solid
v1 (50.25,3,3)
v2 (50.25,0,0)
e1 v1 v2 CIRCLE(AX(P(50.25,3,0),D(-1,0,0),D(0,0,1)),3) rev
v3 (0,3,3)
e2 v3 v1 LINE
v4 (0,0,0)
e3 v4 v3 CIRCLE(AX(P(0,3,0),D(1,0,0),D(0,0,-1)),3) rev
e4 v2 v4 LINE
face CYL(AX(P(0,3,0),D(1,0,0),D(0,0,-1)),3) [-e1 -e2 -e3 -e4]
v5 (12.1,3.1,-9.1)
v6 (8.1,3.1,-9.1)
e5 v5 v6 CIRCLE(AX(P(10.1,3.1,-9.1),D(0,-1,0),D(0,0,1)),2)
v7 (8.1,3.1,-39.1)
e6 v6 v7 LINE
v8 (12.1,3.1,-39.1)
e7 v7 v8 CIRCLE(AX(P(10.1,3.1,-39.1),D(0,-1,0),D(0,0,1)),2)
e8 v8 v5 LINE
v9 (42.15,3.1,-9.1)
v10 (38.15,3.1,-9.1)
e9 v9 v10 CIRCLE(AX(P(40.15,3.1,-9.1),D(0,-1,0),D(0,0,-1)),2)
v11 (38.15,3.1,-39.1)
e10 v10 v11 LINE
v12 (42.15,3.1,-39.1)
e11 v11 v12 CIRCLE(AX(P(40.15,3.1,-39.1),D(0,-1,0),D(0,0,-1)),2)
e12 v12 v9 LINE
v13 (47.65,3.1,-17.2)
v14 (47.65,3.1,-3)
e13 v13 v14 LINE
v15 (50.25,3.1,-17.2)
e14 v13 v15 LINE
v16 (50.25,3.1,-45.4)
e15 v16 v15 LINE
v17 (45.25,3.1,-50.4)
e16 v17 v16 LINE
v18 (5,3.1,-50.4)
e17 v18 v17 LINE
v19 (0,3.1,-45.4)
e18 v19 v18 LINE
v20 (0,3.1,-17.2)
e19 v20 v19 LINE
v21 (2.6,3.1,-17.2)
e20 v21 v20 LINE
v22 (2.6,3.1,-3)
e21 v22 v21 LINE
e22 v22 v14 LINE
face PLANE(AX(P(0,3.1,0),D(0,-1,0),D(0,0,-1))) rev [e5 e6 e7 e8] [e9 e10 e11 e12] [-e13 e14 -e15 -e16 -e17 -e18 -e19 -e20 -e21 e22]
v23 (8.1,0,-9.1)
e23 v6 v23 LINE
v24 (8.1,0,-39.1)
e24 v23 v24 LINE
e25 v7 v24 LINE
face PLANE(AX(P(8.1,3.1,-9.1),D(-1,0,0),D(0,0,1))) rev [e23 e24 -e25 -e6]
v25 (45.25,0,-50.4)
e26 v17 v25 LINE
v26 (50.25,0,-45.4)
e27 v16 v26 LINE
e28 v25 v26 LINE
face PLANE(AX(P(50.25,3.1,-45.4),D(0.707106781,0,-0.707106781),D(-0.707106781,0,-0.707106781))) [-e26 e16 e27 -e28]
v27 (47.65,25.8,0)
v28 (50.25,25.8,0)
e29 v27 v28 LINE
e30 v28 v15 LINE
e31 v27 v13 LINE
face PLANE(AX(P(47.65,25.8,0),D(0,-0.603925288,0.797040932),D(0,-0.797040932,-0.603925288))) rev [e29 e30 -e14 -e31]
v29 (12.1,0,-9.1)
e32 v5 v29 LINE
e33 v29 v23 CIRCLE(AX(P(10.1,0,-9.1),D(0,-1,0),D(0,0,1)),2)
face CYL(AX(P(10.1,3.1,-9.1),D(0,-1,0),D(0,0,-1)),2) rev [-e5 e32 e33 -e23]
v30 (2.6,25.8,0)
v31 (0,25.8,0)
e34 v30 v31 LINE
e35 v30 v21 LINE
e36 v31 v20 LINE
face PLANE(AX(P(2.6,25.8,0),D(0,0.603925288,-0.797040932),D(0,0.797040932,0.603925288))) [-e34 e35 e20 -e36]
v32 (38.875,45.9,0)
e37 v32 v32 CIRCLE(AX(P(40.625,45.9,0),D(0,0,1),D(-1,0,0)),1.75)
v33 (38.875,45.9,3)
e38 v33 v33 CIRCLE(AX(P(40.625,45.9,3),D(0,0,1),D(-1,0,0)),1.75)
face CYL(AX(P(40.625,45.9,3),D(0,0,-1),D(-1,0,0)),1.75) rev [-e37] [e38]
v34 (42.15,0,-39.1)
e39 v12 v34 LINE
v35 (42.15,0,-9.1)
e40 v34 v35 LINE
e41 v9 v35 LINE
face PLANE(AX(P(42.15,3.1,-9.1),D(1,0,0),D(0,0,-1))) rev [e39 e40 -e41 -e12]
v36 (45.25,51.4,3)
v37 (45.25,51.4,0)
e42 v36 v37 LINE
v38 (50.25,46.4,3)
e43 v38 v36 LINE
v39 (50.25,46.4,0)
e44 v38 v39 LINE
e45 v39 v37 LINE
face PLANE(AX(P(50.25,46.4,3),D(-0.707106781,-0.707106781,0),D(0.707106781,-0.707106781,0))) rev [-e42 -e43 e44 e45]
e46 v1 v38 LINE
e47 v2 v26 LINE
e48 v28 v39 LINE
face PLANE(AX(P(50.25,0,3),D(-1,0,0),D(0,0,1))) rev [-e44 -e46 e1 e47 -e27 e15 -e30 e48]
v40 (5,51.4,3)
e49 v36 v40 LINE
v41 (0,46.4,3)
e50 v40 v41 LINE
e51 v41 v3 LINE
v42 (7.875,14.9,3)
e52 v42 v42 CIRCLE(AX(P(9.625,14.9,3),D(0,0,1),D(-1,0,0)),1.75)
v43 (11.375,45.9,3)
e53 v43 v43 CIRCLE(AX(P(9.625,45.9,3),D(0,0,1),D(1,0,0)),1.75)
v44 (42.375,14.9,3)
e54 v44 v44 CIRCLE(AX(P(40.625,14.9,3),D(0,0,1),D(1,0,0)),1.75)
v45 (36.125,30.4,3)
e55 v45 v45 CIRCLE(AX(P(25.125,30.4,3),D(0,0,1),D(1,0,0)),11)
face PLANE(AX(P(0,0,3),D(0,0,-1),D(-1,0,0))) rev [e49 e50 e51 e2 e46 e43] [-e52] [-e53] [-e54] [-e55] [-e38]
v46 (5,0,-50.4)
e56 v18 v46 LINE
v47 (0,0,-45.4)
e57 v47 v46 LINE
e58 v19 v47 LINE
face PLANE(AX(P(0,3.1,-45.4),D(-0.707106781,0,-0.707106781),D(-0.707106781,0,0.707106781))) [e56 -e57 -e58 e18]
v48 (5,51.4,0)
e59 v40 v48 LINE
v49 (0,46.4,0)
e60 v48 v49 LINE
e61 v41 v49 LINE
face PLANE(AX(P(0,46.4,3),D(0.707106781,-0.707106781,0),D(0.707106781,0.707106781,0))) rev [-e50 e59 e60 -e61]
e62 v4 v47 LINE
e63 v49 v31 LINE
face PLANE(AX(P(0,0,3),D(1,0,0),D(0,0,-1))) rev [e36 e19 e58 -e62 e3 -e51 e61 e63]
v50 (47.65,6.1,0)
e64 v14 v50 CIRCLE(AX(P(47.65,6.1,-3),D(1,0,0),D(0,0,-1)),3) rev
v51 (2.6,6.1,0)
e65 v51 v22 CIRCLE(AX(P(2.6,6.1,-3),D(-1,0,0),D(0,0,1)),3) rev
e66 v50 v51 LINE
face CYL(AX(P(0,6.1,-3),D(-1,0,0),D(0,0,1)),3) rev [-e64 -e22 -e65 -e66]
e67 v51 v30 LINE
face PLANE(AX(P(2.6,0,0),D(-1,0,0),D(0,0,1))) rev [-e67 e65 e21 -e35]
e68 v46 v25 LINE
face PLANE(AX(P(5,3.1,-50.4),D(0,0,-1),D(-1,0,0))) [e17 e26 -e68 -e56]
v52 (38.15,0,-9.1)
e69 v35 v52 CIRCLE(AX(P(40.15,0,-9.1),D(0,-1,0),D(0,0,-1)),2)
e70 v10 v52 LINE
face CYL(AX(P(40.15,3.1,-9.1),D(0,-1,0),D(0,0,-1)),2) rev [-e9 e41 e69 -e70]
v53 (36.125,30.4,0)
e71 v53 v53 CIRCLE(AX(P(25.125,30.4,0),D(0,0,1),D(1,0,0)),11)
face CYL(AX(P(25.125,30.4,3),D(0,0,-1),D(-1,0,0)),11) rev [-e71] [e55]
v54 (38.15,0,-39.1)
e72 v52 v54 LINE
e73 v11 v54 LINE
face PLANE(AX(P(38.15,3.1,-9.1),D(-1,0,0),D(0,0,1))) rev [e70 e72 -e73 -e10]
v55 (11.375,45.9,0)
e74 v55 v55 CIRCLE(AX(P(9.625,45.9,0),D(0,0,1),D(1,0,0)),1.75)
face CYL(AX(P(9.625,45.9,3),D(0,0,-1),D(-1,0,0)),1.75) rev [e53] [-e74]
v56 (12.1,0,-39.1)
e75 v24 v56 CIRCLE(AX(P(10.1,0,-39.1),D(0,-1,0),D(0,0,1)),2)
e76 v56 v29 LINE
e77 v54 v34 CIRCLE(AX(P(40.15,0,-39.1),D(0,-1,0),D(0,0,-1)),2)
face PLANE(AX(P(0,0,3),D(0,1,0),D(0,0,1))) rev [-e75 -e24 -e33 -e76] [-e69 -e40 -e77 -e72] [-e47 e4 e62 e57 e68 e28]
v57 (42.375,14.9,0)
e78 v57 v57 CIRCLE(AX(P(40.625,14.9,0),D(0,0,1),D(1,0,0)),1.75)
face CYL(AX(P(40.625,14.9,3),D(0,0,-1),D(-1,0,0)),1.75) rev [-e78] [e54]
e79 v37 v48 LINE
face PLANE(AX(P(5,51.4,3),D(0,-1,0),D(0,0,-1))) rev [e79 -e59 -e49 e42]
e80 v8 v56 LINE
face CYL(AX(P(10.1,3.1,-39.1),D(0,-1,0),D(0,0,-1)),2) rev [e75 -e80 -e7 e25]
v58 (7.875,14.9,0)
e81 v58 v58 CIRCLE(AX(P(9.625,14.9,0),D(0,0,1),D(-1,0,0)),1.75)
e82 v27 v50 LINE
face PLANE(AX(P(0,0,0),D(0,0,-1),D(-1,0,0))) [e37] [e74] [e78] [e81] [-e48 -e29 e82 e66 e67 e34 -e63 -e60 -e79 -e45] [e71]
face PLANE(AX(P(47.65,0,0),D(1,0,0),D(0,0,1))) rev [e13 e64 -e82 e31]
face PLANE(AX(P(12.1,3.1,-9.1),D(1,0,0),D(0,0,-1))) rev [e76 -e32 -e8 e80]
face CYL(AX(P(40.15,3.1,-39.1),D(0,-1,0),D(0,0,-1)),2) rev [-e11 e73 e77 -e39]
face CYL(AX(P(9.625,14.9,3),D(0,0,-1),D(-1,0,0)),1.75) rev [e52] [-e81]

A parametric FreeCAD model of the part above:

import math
import FreeCAD as App
import Part
import Sketcher
from FreeCAD import Vector


def edges_at(feature, points):
    """Names of the edges that pass closest to the given points."""
    edges = feature.Shape.Edges
    near = lambda p: min(range(len(edges)), key=lambda i: edges[i].distToShape(Part.Vertex(*p))[0])
    return sorted({f"Edge{near(p) + 1}" for p in points})


def add_polygon(sketch, points):
    """Adds a closed chain of lines whose ends are joined by coincident constraints."""
    first, n = sketch.GeometryCount, len(points)
    for a, b in zip(points, points[1:] + points[:1]):
        sketch.addGeometry(Part.LineSegment(App.Vector(*a, 0), App.Vector(*b, 0)), False)
    for i in range(n):
        sketch.addConstraint(Sketcher.Constraint("Coincident", first + i, 2, first + (i + 1) % n, 1))

doc = App.newDocument("Part")
body = doc.addObject("PartDesign::Body", "Body")

sketch1 = body.newObject("Sketcher::SketchObject", "Sketch")
sketch1.AttachmentSupport = (doc.getObject("XY_Plane"), [""])
sketch1.MapMode = "FlatFace"
add_polygon(sketch1, [(5, 51.4), (0, 46.4), (0, 0), (50.25, 0), (50.25, 46.4), (45.25, 51.4)])
sketch1.addGeometry(Part.Circle(Vector(40.625, 14.9, 0), Vector(0, 0, 1), 1.75), False)
sketch1.addGeometry(Part.Circle(Vector(9.625, 14.9, 0), Vector(0, 0, 1), 1.75), False)
sketch1.addGeometry(Part.Circle(Vector(40.625, 45.9, 0), Vector(0, 0, 1), 1.75), False)
sketch1.addGeometry(Part.Circle(Vector(25.125, 30.4, 0), Vector(0, 0, 1), 11), False)
sketch1.addGeometry(Part.Circle(Vector(9.625, 45.9, 0), Vector(0, 0, 1), 1.75), False)
sketch1.addConstraint([
    Sketcher.Constraint("Vertical", 1),
    Sketcher.Constraint("Horizontal", 2),
    Sketcher.Constraint("Vertical", 3),
    Sketcher.Constraint("Horizontal", 5),
    Sketcher.Constraint("Coincident", 1, 2, -1, 1),
    Sketcher.Constraint("Equal", 6, 7),
    Sketcher.Constraint("Equal", 7, 8),
    Sketcher.Constraint("Equal", 8, 10),
    Sketcher.Constraint("Perpendicular", 0, 4),
    Sketcher.Constraint("Horizontal", 6, 3, 7, 3),
    Sketcher.Constraint("Horizontal", 8, 3, 10, 3),
    Sketcher.Constraint("Horizontal", 0, 2, 3, 2),
    Sketcher.Constraint("Vertical", 6, 3, 8, 3),
    Sketcher.Constraint("Vertical", 7, 3, 10, 3),
    Sketcher.Constraint("Equal", 0, 4),
    Sketcher.Constraint("Diameter", 9, 22.0),
    Sketcher.Constraint("Diameter", 6, 3.5),
    Sketcher.Constraint("DistanceY", 1, 2, 1, 1, 46.4),
    Sketcher.Constraint("DistanceX", -1, 1, 5, 2, 5.0),
    Sketcher.Constraint("DistanceX", 7, 3, 6, 3, 31.0),
    Sketcher.Constraint("DistanceY", 6, 3, 8, 3, 31.0),
    Sketcher.Constraint("DistanceY", 9, 3, 0, 2, 16.0),
    Sketcher.Constraint("DistanceX", 2, 1, 2, 2, 50.25),
    Sketcher.Constraint("DistanceY", -1, 1, 6, 3, 14.9),
    Sketcher.Constraint("DistanceX", 9, 3, 6, 3, 15.5),
    Sketcher.Constraint("DistanceX", -1, 1, 6, 3, 40.625),
])
pad1 = body.newObject("PartDesign::Pad", "Pad")
pad1.Profile = sketch1
pad1.Length = 3

sketch2 = body.newObject("Sketcher::SketchObject", "Sketch001")
sketch2.AttachmentSupport = (doc.getObject("XZ_Plane"), [""])
sketch2.MapMode = "FlatFace"
add_polygon(sketch2, [(50.25, 3), (0, 3), (0, -45.4), (5, -50.4), (45.25, -50.4), (50.25, -45.4)])
sketch2.addGeometry(Part.LineSegment(Vector(42.15, -9.1, 0), Vector(42.15, -39.1, 0)), False)
sketch2.addGeometry(Part.ArcOfCircle(Part.Circle(Vector(40.15, -39.1, 0), Vector(0, 0, 1), 2), math.radians(180), math.radians(360)), False)
sketch2.addGeometry(Part.LineSegment(Vector(38.15, -39.1, 0), Vector(38.15, -9.1, 0)), False)
sketch2.addGeometry(Part.ArcOfCircle(Part.Circle(Vector(40.15, -9.1, 0), Vector(0, 0, 1), 2), math.radians(0), math.radians(180)), False)
sketch2.addGeometry(Part.ArcOfCircle(Part.Circle(Vector(10.1, -9.1, 0), Vector(0, 0, 1), 2), math.radians(0), math.radians(180)), False)
sketch2.addGeometry(Part.LineSegment(Vector(12.1, -9.1, 0), Vector(12.1, -39.1, 0)), False)
sketch2.addGeometry(Part.ArcOfCircle(Part.Circle(Vector(10.1, -39.1, 0), Vector(0, 0, 1), 2), math.radians(180), math.radians(360)), False)
sketch2.addGeometry(Part.LineSegment(Vector(8.1, -39.1, 0), Vector(8.1, -9.1, 0)), False)
sketch2.addConstraint([
    Sketcher.Constraint("Tangent", 6, 2, 7, 2),
    Sketcher.Constraint("Tangent", 7, 1, 8, 1),
    Sketcher.Constraint("Tangent", 8, 2, 9, 2),
    Sketcher.Constraint("Tangent", 9, 1, 6, 1),
    Sketcher.Constraint("Tangent", 10, 1, 11, 1),
    Sketcher.Constraint("Tangent", 11, 2, 12, 2),
    Sketcher.Constraint("Tangent", 12, 1, 13, 1),
    Sketcher.Constraint("Tangent", 13, 2, 10, 2),
    Sketcher.Constraint("Horizontal", 0),
    Sketcher.Constraint("Vertical", 1),
    Sketcher.Constraint("Horizontal", 3),
    Sketcher.Constraint("Vertical", 5),
    Sketcher.Constraint("Vertical", 6),
    Sketcher.Constraint("Vertical", 8),
    Sketcher.Constraint("Vertical", 11),
    Sketcher.Constraint("Vertical", 13),
    Sketcher.Constraint("Equal", 9, 10),
    Sketcher.Constraint("PointOnObject", 0, 2, -2),
    Sketcher.Constraint("Perpendicular", 2, 4),
    Sketcher.Constraint("Horizontal", 9, 3, 10, 3),
    Sketcher.Constraint("Horizontal", 7, 3, 12, 3),
    Sketcher.Constraint("Horizontal", 1, 2, 4, 2),
    Sketcher.Constraint("Equal", 2, 4),
    Sketcher.Constraint("Radius", 7, 2.0),
    Sketcher.Constraint("DistanceY", 6, 2, 6, 1, 30.0),
    Sketcher.Constraint("DistanceY", 1, 2, 1, 1, 48.4),
    Sketcher.Constraint("DistanceY", -1, 1, 0, 2, 3.0),
    Sketcher.Constraint("DistanceX", -1, 1, 2, 2, 5.0),
    Sketcher.Constraint("DistanceX", 0, 2, 0, 1, 50.25),
    Sketcher.Constraint("DistanceY", 7, 3, -1, 1, 39.1),
    Sketcher.Constraint("DistanceX", -1, 1, 10, 3, 10.1),
    Sketcher.Constraint("DistanceX", 7, 3, 3, 2, 5.1),
])
pad2 = body.newObject("PartDesign::Pad", "Pad001")
pad2.Profile = sketch2
pad2.Length = 3.1
pad2.Reversed = True

sketch3 = body.newObject("Sketcher::SketchObject", "Sketch002")
sketch3.AttachmentSupport = (doc.getObject("YZ_Plane"), [""])
sketch3.MapMode = "FlatFace"
add_polygon(sketch3, [(25.8, 0), (3.1, -17.2), (0, -17.2), (0, 3), (25.8, 3)])
sketch3.addConstraint([
    Sketcher.Constraint("Horizontal", 1),
    Sketcher.Constraint("Vertical", 2),
    Sketcher.Constraint("Horizontal", 3),
    Sketcher.Constraint("Vertical", 4),
    Sketcher.Constraint("PointOnObject", 1, 2, -2),
    Sketcher.Constraint("PointOnObject", 4, 2, -1),
    Sketcher.Constraint("DistanceY", 4, 2, 4, 1, 3.0),
    Sketcher.Constraint("DistanceX", 1, 2, 1, 1, 3.1),
    Sketcher.Constraint("DistanceX", 3, 1, 3, 2, 25.8),
    Sketcher.Constraint("DistanceY", 2, 1, 2, 2, 20.2),
])
pad3 = body.newObject("PartDesign::Pad", "Pad002")
pad3.Profile = sketch3
pad3.Length = 2.6
doc.recompute()

datumplane = body.newObject("PartDesign::Plane", "DatumPlane")
datumplane.AttachmentSupport = (doc.getObject("YZ_Plane"), [""])
datumplane.MapMode = "FlatFace"
datumplane.AttachmentOffset = App.Placement(Vector(0, 0, 25.125), App.Rotation())
mirrored = body.newObject("PartDesign::Mirrored", "Mirrored")
mirrored.Originals = [pad3]
mirrored.MirrorPlane = (datumplane, [""])
body.Tip = mirrored
doc.recompute()

fillet = body.newObject("PartDesign::Fillet", "Fillet")
fillet.Base = (mirrored, edges_at(mirrored, [(25.125, 0, 3)]))
fillet.Radius = 3
doc.recompute()

fillet2 = body.newObject("PartDesign::Fillet", "Fillet001")
fillet2.Base = (fillet, edges_at(fillet, [(25.125, 3.1, 0)]))
fillet2.Radius = 3

doc.recompute()
